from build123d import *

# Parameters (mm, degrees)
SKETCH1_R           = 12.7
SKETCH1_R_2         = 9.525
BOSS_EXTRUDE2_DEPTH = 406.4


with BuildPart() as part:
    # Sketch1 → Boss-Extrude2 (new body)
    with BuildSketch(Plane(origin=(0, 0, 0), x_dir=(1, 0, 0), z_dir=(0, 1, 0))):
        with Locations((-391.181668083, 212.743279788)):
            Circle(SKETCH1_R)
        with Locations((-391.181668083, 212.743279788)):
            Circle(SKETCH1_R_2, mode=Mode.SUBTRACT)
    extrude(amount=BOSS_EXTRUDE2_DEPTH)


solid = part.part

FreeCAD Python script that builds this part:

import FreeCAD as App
import Part
import Sketcher

V = App.Vector
Q = App.Units.Quantity

doc = App.newDocument("Part")
body = doc.addObject("PartDesign::Body", "Body")

# Sketch on XZ plane
sketch1 = doc.addObject("Sketcher::SketchObject", "Sketch")
body.addObject(sketch1)
sketch1.AttachmentSupport = (doc.XZ_Plane, [""])
sketch1.MapMode = "FlatFace"
sketch1.addGeometry([
    Part.Circle(V(-391.181668, -212.74328, 0), V(0, 0, 1), 12.7),
    Part.Circle(V(-391.181668, -212.74328, 0), V(0, 0, 1), 9.525),
], False)
sketch1.addConstraint([
    Sketcher.Constraint("Coincident", 1, 3, 0, 3),
    Sketcher.Constraint("Diameter", 0, Q("1 in")),
    Sketcher.Constraint("Diameter", 1, Q("0.75 in")),
    Sketcher.Constraint("DistanceX", 0, 3, -1, 1, 391.181668),
    Sketcher.Constraint("DistanceY", 0, 3, -1, 1, 212.74328),
])
pad1 = doc.addObject("PartDesign::Pad", "Pad")
body.addObject(pad1)
pad1.Profile = sketch1
pad1.Length = Q("16 in")
pad1.Reversed = True

doc.recompute()
